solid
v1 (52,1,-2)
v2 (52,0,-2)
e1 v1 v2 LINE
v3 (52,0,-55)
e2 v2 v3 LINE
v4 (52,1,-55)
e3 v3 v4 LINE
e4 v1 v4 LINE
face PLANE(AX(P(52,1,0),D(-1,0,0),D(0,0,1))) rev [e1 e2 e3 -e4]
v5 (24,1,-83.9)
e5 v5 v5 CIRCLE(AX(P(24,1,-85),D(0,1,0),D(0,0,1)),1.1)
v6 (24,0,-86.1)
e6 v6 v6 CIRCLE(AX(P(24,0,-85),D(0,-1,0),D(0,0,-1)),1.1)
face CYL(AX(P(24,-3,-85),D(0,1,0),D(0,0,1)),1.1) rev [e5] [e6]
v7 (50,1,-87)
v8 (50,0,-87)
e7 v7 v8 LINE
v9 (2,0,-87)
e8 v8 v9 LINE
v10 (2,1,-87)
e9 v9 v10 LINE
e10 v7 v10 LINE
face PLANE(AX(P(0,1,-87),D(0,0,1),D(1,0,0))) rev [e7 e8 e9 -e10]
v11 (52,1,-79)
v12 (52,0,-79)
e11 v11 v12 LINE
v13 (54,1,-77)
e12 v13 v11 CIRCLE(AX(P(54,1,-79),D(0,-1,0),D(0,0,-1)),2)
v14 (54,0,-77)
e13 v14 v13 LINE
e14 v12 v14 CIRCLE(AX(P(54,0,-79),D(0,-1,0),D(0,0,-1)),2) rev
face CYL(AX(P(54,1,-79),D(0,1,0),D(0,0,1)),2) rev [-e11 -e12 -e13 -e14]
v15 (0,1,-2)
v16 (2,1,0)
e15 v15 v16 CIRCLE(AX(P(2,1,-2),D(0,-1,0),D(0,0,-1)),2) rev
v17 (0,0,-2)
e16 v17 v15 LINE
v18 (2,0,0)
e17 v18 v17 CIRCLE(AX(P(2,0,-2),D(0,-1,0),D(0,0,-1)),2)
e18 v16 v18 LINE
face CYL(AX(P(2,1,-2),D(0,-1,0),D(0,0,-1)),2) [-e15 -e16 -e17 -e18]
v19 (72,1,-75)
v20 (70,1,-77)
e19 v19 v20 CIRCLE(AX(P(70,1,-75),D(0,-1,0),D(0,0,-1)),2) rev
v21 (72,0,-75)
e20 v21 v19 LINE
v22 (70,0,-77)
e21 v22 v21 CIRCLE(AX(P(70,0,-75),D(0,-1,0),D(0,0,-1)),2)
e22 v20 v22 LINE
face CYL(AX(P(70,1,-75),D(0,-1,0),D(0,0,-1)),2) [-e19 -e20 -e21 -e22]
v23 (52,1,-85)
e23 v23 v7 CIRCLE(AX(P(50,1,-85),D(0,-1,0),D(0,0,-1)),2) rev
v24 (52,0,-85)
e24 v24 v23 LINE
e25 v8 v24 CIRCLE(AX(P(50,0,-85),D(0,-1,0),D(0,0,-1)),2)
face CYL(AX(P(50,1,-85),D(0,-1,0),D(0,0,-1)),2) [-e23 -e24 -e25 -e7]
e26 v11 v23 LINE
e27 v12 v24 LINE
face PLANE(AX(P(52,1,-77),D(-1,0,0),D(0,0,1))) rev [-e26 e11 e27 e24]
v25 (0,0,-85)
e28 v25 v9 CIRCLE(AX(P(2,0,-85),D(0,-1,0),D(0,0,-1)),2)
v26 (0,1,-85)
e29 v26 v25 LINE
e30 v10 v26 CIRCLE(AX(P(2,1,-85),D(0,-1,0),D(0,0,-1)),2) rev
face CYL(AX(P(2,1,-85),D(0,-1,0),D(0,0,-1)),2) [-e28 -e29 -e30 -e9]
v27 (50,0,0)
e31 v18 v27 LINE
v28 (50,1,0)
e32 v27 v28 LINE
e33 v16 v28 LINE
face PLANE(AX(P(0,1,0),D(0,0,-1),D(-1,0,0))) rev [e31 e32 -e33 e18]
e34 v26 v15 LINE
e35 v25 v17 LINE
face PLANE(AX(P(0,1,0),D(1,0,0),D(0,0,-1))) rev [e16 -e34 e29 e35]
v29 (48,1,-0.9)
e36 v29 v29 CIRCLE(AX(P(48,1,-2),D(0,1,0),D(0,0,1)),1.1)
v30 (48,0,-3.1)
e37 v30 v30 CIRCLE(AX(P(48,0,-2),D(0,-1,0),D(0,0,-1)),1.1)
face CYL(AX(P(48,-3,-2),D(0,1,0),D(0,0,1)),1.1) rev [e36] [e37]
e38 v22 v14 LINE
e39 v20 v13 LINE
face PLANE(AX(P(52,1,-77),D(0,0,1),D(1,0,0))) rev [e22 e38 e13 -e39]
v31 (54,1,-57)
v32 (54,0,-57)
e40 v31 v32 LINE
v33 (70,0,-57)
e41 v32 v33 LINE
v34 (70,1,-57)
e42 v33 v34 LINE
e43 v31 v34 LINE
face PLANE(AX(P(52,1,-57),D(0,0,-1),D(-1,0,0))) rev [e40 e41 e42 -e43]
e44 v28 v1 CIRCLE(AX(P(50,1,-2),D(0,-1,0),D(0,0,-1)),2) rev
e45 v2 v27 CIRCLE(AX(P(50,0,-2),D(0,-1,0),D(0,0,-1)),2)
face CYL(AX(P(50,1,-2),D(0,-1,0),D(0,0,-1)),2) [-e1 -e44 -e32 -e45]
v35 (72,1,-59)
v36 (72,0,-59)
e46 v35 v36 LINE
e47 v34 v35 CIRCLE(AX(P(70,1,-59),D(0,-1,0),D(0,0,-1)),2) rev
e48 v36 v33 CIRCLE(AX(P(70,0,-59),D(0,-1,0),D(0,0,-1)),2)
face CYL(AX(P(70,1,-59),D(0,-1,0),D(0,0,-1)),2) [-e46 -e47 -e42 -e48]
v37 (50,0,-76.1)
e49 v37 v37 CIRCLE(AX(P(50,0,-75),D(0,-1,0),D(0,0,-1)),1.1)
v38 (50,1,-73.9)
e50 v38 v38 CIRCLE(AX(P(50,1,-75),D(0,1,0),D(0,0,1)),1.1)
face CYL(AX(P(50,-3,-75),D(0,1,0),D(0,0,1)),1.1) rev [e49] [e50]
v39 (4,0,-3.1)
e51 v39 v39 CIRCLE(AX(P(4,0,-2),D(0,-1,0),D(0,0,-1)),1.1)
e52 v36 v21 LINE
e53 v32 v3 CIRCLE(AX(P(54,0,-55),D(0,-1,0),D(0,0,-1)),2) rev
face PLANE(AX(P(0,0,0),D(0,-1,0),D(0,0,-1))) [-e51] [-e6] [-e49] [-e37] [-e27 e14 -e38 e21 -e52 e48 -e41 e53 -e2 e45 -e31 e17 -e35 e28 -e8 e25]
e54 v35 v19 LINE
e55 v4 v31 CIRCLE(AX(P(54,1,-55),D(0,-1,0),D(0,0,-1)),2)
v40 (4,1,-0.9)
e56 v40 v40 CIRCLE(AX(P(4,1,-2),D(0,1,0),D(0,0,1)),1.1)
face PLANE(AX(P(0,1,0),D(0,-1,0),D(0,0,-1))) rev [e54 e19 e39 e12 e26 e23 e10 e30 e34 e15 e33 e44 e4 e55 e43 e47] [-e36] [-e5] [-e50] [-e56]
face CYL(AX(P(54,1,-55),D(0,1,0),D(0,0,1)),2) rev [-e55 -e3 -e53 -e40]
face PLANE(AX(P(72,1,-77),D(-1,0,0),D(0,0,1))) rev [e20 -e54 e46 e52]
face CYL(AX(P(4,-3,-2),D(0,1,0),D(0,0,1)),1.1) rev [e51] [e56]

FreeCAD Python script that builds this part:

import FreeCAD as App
import Part
import Sketcher
from FreeCAD import Vector
Q = App.Units.Quantity


def edges_at(feature, points):
    """Names of the edges that pass closest to the given points."""
    edges = feature.Shape.Edges
    near = lambda p: min(range(len(edges)), key=lambda i: edges[i].distToShape(Part.Vertex(*p))[0])
    return sorted({f"Edge{near(p) + 1}" for p in points})


def add_polygon(sketch, points):
    """Adds a closed chain of lines whose ends are joined by coincident constraints."""
    first, n = sketch.GeometryCount, len(points)
    for a, b in zip(points, points[1:] + points[:1]):
        sketch.addGeometry(Part.LineSegment(App.Vector(*a, 0), App.Vector(*b, 0)), False)
    for i in range(n):
        sketch.addConstraint(Sketcher.Constraint("Coincident", first + i, 2, first + (i + 1) % n, 1))

doc = App.newDocument("Part")
params = doc.addObject("Spreadsheet::Sheet", "Params")
for row, (alias, value) in enumerate([
    ("sketch1_width", "52 mm"),
    ("sketch1_width2", "20 mm"),
    ("sketch1_height", "10 mm"),
    ("sketch1_height2", "87 mm"),
    ("pad1_length", "1 mm"),
    ("sketch2_diameter", "2.2 mm"),
    ("pocket1_length", "4 mm"),
    ("fillet_radius", "2 mm"),
], start=1):
    params.set(f"A{row}", alias)
    params.set(f"B{row}", "=" + value)
    params.setAlias(f"B{row}", alias)

body = doc.addObject("PartDesign::Body", "Body")

# Sketch on XZ plane
sketch1 = body.newObject("Sketcher::SketchObject", "Sketch")
sketch1.AttachmentSupport = (doc.getObject("XZ_Plane"), [""])
sketch1.MapMode = "FlatFace"
add_polygon(sketch1, [(52, -77), (52, -87), (0, -87), (0, 0), (52, 0), (52, -57), (72, -57), (72, -77)])  # lines 0-7
sketch1.addConstraint([
    Sketcher.Constraint("Vertical", 0),
    Sketcher.Constraint("Horizontal", 1),
    Sketcher.Constraint("Vertical", 2),
    Sketcher.Constraint("Horizontal", 3),
    Sketcher.Constraint("Vertical", 4),
    Sketcher.Constraint("Horizontal", 5),
    Sketcher.Constraint("Vertical", 6),
    Sketcher.Constraint("Horizontal", 7),
    Sketcher.Constraint("Coincident", 2, 2, -1, 1),
    Sketcher.Constraint("Vertical", 0, 2, 3, 2),
    Sketcher.Constraint("Equal", 7, 6),
    Sketcher.Constraint("DistanceX", 1, 2, 1, 1, Q("52 mm")),
    Sketcher.Constraint("DistanceX", 5, 1, 5, 2, Q("20 mm")),
    Sketcher.Constraint("DistanceY", 0, 2, 0, 1, Q("10 mm")),
    Sketcher.Constraint("DistanceY", 2, 1, 2, 2, Q("87 mm")),
])
sketch1.setExpression("Constraints[19]", "Params.sketch1_width")
sketch1.setExpression("Constraints[20]", "Params.sketch1_width2")
sketch1.setExpression("Constraints[21]", "Params.sketch1_height")
sketch1.setExpression("Constraints[22]", "Params.sketch1_height2")
pad1 = body.newObject("PartDesign::Pad", "Pad")
pad1.Profile = sketch1
pad1.setExpression("Length", "Params.pad1_length")
pad1.Reversed = True

# Sketch on XZ plane
sketch2 = body.newObject("Sketcher::SketchObject", "Sketch001")
sketch2.AttachmentSupport = (doc.getObject("XZ_Plane"), [""])
sketch2.MapMode = "FlatFace"
sketch2.AttachmentOffset = App.Placement(Vector(0, 0, -1), App.Rotation())
sketch2.addGeometry([
    Part.Circle(Vector(4, -2, 0), Vector(0, 0, 1), 1.1),
    Part.Circle(Vector(48, -2, 0), Vector(0, 0, 1), 1.1),
    Part.Circle(Vector(24, -85, 0), Vector(0, 0, 1), 1.1),
    Part.Circle(Vector(50, -75, 0), Vector(0, 0, 1), 1.1),
], False)
sketch2.addConstraint([
    Sketcher.Constraint("Equal", 0, 1),
    Sketcher.Constraint("Equal", 1, 2),
    Sketcher.Constraint("Equal", 2, 3),
    Sketcher.Constraint("Horizontal", 0, 3, 1, 3),
    Sketcher.Constraint("Diameter", 0, Q("2.2 mm")),
    Sketcher.Constraint("DistanceX", -1, 1, 0, 3, Q("4 mm")),
    Sketcher.Constraint("DistanceY", 0, 3, -1, 1, Q("2 mm")),
    Sketcher.Constraint("DistanceX", -1, 1, 1, 3, Q("48 mm")),
    Sketcher.Constraint("DistanceX", -1, 1, 2, 3, Q("24 mm")),
    Sketcher.Constraint("DistanceY", 2, 3, -1, 1, Q("85 mm")),
    Sketcher.Constraint("DistanceX", -1, 1, 3, 3, Q("50 mm")),
    Sketcher.Constraint("DistanceY", 3, 3, -1, 1, Q("75 mm")),
])
sketch2.setExpression("Constraints[4]", "Params.sketch2_diameter")
pocket1 = body.newObject("PartDesign::Pocket", "Pocket")
pocket1.Profile = sketch2
pocket1.setExpression("Length", "Params.pocket1_length")
pocket1.Reversed = True
doc.recompute()

fillet = body.newObject("PartDesign::Fillet", "Fillet")
fillet.Base = (pocket1, edges_at(pocket1, [
    (0, 0.5, -87),
    (52, 0.5, -87),
    (52, 0.5, -77),
    (72, 0.5, -77),
    (72, 0.5, -57),
    (52, 0.5, -57),
    (52, 0.5, 0),
    (0, 0.5, 0),
]))
fillet.setExpression("Radius", "Params.fillet_radius")

doc.recompute()
